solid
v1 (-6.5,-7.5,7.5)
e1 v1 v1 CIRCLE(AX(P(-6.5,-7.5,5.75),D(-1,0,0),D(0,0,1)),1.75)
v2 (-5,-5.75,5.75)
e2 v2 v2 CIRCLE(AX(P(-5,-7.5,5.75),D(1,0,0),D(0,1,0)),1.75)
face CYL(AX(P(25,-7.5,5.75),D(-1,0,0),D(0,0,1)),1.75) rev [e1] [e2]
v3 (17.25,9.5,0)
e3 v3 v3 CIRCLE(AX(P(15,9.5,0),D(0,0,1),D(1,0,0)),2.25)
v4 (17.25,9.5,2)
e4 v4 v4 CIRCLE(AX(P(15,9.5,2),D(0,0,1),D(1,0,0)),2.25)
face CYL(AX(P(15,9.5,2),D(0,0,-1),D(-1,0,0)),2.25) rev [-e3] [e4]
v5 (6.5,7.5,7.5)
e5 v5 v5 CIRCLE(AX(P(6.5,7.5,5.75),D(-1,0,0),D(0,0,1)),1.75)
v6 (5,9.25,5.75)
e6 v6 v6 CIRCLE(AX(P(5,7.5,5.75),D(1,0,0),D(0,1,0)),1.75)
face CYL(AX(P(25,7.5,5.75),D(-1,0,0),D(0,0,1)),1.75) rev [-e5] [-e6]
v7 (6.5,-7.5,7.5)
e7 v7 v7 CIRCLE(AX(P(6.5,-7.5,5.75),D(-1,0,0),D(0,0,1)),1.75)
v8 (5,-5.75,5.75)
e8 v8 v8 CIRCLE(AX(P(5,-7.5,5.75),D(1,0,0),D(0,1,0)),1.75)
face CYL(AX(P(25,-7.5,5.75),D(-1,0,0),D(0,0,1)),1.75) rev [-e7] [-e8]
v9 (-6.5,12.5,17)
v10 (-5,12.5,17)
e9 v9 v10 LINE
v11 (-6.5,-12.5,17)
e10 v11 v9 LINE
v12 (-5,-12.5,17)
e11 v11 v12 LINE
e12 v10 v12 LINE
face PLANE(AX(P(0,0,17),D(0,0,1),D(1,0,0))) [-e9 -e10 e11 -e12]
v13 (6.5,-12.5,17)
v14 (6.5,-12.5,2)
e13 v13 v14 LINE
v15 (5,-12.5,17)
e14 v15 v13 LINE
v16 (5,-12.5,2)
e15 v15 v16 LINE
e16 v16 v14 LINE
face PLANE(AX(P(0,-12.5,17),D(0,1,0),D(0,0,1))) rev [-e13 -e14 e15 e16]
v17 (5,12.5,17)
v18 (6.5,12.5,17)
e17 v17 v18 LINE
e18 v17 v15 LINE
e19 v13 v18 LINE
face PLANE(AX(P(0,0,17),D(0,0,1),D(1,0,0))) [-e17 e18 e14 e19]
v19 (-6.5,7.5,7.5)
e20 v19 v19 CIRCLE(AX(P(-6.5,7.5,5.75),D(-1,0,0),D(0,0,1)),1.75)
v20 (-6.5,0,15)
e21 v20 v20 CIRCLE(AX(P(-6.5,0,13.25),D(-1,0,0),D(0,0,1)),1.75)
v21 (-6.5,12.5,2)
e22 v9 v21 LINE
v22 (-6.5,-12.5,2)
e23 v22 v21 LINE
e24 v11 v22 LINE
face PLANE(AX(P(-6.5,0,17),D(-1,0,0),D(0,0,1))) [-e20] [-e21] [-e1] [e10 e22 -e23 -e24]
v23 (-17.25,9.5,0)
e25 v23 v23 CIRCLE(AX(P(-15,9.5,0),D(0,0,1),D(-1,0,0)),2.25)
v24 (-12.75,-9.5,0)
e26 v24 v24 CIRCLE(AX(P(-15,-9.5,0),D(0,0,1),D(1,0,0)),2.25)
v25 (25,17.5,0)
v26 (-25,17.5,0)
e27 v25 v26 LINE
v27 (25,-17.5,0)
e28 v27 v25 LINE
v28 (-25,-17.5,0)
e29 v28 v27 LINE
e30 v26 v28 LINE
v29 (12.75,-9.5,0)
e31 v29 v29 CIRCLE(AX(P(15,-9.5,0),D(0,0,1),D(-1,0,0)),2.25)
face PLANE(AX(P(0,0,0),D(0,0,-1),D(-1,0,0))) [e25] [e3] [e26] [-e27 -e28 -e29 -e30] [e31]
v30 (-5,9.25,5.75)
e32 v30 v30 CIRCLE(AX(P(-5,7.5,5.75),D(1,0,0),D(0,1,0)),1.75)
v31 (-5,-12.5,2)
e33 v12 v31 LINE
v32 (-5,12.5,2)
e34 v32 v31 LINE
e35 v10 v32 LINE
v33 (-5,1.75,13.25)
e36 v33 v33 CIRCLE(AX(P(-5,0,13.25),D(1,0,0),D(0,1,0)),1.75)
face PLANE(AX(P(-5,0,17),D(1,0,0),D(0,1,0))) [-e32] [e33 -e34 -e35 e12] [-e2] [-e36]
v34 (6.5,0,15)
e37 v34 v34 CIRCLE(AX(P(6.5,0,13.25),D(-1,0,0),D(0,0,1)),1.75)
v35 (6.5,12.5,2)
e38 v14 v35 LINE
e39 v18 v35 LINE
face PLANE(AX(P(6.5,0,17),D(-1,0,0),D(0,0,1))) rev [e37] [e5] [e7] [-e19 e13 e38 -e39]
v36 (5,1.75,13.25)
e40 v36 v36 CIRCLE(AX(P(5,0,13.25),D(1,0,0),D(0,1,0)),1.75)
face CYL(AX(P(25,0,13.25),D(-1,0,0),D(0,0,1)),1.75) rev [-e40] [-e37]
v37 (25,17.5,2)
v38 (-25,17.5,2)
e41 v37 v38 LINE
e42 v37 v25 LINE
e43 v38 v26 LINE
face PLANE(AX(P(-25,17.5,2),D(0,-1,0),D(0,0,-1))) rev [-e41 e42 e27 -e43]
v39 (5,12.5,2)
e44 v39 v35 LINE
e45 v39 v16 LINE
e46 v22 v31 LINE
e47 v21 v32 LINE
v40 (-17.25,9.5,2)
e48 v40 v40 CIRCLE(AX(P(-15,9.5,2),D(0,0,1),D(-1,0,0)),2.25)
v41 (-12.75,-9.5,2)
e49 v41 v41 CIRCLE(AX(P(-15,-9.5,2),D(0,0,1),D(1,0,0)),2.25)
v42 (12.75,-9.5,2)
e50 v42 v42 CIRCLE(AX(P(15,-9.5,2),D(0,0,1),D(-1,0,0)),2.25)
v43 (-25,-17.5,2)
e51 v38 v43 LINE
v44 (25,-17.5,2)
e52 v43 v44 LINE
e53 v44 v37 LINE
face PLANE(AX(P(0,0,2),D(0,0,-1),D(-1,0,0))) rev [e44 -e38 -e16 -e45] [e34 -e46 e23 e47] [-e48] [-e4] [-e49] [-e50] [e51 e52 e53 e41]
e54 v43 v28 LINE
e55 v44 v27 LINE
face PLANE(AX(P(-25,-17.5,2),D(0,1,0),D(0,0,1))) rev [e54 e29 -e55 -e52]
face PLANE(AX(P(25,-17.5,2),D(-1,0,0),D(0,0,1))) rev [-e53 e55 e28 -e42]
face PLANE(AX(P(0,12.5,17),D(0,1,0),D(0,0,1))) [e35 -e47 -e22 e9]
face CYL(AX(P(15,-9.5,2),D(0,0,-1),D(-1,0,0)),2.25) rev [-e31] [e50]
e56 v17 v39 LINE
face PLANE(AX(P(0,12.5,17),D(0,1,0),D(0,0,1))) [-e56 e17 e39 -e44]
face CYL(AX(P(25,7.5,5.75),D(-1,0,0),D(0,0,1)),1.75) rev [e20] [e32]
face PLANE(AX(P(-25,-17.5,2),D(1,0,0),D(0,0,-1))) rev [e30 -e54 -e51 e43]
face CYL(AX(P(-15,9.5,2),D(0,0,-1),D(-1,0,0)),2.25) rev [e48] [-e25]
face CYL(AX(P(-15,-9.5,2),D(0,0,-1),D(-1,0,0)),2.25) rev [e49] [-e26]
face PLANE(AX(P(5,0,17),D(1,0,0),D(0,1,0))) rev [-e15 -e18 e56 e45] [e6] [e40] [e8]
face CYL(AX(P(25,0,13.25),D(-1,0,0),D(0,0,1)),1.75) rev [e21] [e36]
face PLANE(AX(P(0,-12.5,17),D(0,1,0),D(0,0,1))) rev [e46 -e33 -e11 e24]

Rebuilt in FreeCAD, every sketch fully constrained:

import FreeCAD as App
import Part
import Sketcher

V = App.Vector
Q = App.Units.Quantity


def add_polygon(sketch, points):
    """Adds a closed chain of lines whose ends are joined by coincident constraints."""
    first, n = sketch.GeometryCount, len(points)
    for a, b in zip(points, points[1:] + points[:1]):
        sketch.addGeometry(Part.LineSegment(App.Vector(*a, 0), App.Vector(*b, 0)), False)
    for i in range(n):
        sketch.addConstraint(Sketcher.Constraint("Coincident", first + i, 2, first + (i + 1) % n, 1))

doc = App.newDocument("Part")
body = doc.addObject("PartDesign::Body", "Body")

sketch1 = body.newObject("Sketcher::SketchObject", "Sketch")
sketch1.AttachmentSupport = (doc.getObject("XY_Plane"), [""])
sketch1.MapMode = "FlatFace"
add_polygon(sketch1, [(-25, 17.5), (-25, -17.5), (25, -17.5), (25, 17.5)])
sketch1.addGeometry(Part.Circle(V(-15, -9.5, 0), V(0, 0, 1), 2.25), False)
sketch1.addGeometry(Part.Circle(V(15, -9.5, 0), V(0, 0, 1), 2.25), False)
sketch1.addGeometry(Part.Circle(V(-15, 9.5, 0), V(0, 0, 1), 2.25), False)
sketch1.addGeometry(Part.Circle(V(15, 9.5, 0), V(0, 0, 1), 2.25), False)
sketch1.addConstraint([
    Sketcher.Constraint("Vertical", 0),
    Sketcher.Constraint("Horizontal", 1),
    Sketcher.Constraint("Vertical", 2),
    Sketcher.Constraint("Horizontal", 3),
    Sketcher.Constraint("Equal", 4, 5),
    Sketcher.Constraint("Equal", 5, 6),
    Sketcher.Constraint("Equal", 6, 7),
    Sketcher.Constraint("Symmetric", 5, 3, 6, 3, -1, 1),
    Sketcher.Constraint("Symmetric", 4, 3, 7, 3, -1, 1),
    Sketcher.Constraint("Symmetric", 0, 2, 2, 2, -1, 1),
    Sketcher.Constraint("Symmetric", 4, 3, 5, 3, -2),
    Sketcher.Constraint("Diameter", 4, Q("4.5 mm")),
    Sketcher.Constraint("DistanceX", 1, 1, 1, 2, Q("50 mm")),
    Sketcher.Constraint("DistanceY", 0, 2, 0, 1, Q("35 mm")),
    Sketcher.Constraint("DistanceX", 4, 3, -1, 1, Q("15 mm")),
    Sketcher.Constraint("DistanceY", 4, 3, 6, 3, Q("19 mm")),
])
pad1 = body.newObject("PartDesign::Pad", "Pad")
pad1.Profile = sketch1
pad1.Length = 2

sketch2 = body.newObject("Sketcher::SketchObject", "Sketch001")
sketch2.AttachmentSupport = (doc.getObject("XY_Plane"), [""])
sketch2.MapMode = "FlatFace"
sketch2.AttachmentOffset = App.Placement(V(0, 0, 2), App.Rotation())
add_polygon(sketch2, [(-6.5, 12.5), (-6.5, -12.5), (-5, -12.5), (-5, 12.5)])
add_polygon(sketch2, [(5, 12.5), (5, -12.5), (6.5, -12.5), (6.5, 12.5)])
sketch2.addConstraint([
    Sketcher.Constraint("Vertical", 0),
    Sketcher.Constraint("Horizontal", 1),
    Sketcher.Constraint("Vertical", 2),
    Sketcher.Constraint("Horizontal", 3),
    Sketcher.Constraint("Vertical", 4),
    Sketcher.Constraint("Horizontal", 5),
    Sketcher.Constraint("Vertical", 6),
    Sketcher.Constraint("Horizontal", 7),
    Sketcher.Constraint("Symmetric", 2, 2, 4, 2, -1, 1),
    Sketcher.Constraint("Symmetric", 0, 2, 6, 2, -1, 1),
    Sketcher.Constraint("Horizontal", 1, 2, 4, 2),
    Sketcher.Constraint("DistanceY", 0, 2, 0, 1, Q("25 mm")),
    Sketcher.Constraint("DistanceX", 1, 1, 1, 2, Q("1.5 mm")),
    Sketcher.Constraint("DistanceX", 1, 2, -1, 1, Q("5 mm")),
])
pad2 = body.newObject("PartDesign::Pad", "Pad001")
pad2.Profile = sketch2
pad2.Length = 15

sketch3 = body.newObject("Sketcher::SketchObject", "Sketch002")
sketch3.AttachmentSupport = (doc.getObject("YZ_Plane"), [""])
sketch3.MapMode = "FlatFace"
sketch3.AttachmentOffset = App.Placement(V(0, 0, -6.5), App.Rotation())
sketch3.addGeometry([
    Part.Circle(V(-7.5, 5.75, 0), V(0, 0, 1), 1.75),
    Part.Circle(V(7.5, 5.75, 0), V(0, 0, 1), 1.75),
    Part.Circle(V(0, 13.25, 0), V(0, 0, 1), 1.75),
], False)
sketch3.addConstraint([
    Sketcher.Constraint("Equal", 0, 1),
    Sketcher.Constraint("Equal", 1, 2),
    Sketcher.Constraint("Symmetric", 0, 3, 1, 3, -2),
    Sketcher.Constraint("PointOnObject", 2, 3, -2),
    Sketcher.Constraint("Diameter", 0, Q("3.5 mm")),
    Sketcher.Constraint("DistanceX", 0, 3, 1, 3, Q("15 mm")),
    Sketcher.Constraint("DistanceY", 0, 3, 2, 3, Q("7.5 mm")),
    Sketcher.Constraint("DistanceY", -1, 1, 0, 3, Q("5.75 mm")),
])
pocket1 = body.newObject("PartDesign::Pocket", "Pocket")
pocket1.Profile = sketch3
pocket1.Type = "ThroughAll"
pocket1.Reversed = True

doc.recompute()
